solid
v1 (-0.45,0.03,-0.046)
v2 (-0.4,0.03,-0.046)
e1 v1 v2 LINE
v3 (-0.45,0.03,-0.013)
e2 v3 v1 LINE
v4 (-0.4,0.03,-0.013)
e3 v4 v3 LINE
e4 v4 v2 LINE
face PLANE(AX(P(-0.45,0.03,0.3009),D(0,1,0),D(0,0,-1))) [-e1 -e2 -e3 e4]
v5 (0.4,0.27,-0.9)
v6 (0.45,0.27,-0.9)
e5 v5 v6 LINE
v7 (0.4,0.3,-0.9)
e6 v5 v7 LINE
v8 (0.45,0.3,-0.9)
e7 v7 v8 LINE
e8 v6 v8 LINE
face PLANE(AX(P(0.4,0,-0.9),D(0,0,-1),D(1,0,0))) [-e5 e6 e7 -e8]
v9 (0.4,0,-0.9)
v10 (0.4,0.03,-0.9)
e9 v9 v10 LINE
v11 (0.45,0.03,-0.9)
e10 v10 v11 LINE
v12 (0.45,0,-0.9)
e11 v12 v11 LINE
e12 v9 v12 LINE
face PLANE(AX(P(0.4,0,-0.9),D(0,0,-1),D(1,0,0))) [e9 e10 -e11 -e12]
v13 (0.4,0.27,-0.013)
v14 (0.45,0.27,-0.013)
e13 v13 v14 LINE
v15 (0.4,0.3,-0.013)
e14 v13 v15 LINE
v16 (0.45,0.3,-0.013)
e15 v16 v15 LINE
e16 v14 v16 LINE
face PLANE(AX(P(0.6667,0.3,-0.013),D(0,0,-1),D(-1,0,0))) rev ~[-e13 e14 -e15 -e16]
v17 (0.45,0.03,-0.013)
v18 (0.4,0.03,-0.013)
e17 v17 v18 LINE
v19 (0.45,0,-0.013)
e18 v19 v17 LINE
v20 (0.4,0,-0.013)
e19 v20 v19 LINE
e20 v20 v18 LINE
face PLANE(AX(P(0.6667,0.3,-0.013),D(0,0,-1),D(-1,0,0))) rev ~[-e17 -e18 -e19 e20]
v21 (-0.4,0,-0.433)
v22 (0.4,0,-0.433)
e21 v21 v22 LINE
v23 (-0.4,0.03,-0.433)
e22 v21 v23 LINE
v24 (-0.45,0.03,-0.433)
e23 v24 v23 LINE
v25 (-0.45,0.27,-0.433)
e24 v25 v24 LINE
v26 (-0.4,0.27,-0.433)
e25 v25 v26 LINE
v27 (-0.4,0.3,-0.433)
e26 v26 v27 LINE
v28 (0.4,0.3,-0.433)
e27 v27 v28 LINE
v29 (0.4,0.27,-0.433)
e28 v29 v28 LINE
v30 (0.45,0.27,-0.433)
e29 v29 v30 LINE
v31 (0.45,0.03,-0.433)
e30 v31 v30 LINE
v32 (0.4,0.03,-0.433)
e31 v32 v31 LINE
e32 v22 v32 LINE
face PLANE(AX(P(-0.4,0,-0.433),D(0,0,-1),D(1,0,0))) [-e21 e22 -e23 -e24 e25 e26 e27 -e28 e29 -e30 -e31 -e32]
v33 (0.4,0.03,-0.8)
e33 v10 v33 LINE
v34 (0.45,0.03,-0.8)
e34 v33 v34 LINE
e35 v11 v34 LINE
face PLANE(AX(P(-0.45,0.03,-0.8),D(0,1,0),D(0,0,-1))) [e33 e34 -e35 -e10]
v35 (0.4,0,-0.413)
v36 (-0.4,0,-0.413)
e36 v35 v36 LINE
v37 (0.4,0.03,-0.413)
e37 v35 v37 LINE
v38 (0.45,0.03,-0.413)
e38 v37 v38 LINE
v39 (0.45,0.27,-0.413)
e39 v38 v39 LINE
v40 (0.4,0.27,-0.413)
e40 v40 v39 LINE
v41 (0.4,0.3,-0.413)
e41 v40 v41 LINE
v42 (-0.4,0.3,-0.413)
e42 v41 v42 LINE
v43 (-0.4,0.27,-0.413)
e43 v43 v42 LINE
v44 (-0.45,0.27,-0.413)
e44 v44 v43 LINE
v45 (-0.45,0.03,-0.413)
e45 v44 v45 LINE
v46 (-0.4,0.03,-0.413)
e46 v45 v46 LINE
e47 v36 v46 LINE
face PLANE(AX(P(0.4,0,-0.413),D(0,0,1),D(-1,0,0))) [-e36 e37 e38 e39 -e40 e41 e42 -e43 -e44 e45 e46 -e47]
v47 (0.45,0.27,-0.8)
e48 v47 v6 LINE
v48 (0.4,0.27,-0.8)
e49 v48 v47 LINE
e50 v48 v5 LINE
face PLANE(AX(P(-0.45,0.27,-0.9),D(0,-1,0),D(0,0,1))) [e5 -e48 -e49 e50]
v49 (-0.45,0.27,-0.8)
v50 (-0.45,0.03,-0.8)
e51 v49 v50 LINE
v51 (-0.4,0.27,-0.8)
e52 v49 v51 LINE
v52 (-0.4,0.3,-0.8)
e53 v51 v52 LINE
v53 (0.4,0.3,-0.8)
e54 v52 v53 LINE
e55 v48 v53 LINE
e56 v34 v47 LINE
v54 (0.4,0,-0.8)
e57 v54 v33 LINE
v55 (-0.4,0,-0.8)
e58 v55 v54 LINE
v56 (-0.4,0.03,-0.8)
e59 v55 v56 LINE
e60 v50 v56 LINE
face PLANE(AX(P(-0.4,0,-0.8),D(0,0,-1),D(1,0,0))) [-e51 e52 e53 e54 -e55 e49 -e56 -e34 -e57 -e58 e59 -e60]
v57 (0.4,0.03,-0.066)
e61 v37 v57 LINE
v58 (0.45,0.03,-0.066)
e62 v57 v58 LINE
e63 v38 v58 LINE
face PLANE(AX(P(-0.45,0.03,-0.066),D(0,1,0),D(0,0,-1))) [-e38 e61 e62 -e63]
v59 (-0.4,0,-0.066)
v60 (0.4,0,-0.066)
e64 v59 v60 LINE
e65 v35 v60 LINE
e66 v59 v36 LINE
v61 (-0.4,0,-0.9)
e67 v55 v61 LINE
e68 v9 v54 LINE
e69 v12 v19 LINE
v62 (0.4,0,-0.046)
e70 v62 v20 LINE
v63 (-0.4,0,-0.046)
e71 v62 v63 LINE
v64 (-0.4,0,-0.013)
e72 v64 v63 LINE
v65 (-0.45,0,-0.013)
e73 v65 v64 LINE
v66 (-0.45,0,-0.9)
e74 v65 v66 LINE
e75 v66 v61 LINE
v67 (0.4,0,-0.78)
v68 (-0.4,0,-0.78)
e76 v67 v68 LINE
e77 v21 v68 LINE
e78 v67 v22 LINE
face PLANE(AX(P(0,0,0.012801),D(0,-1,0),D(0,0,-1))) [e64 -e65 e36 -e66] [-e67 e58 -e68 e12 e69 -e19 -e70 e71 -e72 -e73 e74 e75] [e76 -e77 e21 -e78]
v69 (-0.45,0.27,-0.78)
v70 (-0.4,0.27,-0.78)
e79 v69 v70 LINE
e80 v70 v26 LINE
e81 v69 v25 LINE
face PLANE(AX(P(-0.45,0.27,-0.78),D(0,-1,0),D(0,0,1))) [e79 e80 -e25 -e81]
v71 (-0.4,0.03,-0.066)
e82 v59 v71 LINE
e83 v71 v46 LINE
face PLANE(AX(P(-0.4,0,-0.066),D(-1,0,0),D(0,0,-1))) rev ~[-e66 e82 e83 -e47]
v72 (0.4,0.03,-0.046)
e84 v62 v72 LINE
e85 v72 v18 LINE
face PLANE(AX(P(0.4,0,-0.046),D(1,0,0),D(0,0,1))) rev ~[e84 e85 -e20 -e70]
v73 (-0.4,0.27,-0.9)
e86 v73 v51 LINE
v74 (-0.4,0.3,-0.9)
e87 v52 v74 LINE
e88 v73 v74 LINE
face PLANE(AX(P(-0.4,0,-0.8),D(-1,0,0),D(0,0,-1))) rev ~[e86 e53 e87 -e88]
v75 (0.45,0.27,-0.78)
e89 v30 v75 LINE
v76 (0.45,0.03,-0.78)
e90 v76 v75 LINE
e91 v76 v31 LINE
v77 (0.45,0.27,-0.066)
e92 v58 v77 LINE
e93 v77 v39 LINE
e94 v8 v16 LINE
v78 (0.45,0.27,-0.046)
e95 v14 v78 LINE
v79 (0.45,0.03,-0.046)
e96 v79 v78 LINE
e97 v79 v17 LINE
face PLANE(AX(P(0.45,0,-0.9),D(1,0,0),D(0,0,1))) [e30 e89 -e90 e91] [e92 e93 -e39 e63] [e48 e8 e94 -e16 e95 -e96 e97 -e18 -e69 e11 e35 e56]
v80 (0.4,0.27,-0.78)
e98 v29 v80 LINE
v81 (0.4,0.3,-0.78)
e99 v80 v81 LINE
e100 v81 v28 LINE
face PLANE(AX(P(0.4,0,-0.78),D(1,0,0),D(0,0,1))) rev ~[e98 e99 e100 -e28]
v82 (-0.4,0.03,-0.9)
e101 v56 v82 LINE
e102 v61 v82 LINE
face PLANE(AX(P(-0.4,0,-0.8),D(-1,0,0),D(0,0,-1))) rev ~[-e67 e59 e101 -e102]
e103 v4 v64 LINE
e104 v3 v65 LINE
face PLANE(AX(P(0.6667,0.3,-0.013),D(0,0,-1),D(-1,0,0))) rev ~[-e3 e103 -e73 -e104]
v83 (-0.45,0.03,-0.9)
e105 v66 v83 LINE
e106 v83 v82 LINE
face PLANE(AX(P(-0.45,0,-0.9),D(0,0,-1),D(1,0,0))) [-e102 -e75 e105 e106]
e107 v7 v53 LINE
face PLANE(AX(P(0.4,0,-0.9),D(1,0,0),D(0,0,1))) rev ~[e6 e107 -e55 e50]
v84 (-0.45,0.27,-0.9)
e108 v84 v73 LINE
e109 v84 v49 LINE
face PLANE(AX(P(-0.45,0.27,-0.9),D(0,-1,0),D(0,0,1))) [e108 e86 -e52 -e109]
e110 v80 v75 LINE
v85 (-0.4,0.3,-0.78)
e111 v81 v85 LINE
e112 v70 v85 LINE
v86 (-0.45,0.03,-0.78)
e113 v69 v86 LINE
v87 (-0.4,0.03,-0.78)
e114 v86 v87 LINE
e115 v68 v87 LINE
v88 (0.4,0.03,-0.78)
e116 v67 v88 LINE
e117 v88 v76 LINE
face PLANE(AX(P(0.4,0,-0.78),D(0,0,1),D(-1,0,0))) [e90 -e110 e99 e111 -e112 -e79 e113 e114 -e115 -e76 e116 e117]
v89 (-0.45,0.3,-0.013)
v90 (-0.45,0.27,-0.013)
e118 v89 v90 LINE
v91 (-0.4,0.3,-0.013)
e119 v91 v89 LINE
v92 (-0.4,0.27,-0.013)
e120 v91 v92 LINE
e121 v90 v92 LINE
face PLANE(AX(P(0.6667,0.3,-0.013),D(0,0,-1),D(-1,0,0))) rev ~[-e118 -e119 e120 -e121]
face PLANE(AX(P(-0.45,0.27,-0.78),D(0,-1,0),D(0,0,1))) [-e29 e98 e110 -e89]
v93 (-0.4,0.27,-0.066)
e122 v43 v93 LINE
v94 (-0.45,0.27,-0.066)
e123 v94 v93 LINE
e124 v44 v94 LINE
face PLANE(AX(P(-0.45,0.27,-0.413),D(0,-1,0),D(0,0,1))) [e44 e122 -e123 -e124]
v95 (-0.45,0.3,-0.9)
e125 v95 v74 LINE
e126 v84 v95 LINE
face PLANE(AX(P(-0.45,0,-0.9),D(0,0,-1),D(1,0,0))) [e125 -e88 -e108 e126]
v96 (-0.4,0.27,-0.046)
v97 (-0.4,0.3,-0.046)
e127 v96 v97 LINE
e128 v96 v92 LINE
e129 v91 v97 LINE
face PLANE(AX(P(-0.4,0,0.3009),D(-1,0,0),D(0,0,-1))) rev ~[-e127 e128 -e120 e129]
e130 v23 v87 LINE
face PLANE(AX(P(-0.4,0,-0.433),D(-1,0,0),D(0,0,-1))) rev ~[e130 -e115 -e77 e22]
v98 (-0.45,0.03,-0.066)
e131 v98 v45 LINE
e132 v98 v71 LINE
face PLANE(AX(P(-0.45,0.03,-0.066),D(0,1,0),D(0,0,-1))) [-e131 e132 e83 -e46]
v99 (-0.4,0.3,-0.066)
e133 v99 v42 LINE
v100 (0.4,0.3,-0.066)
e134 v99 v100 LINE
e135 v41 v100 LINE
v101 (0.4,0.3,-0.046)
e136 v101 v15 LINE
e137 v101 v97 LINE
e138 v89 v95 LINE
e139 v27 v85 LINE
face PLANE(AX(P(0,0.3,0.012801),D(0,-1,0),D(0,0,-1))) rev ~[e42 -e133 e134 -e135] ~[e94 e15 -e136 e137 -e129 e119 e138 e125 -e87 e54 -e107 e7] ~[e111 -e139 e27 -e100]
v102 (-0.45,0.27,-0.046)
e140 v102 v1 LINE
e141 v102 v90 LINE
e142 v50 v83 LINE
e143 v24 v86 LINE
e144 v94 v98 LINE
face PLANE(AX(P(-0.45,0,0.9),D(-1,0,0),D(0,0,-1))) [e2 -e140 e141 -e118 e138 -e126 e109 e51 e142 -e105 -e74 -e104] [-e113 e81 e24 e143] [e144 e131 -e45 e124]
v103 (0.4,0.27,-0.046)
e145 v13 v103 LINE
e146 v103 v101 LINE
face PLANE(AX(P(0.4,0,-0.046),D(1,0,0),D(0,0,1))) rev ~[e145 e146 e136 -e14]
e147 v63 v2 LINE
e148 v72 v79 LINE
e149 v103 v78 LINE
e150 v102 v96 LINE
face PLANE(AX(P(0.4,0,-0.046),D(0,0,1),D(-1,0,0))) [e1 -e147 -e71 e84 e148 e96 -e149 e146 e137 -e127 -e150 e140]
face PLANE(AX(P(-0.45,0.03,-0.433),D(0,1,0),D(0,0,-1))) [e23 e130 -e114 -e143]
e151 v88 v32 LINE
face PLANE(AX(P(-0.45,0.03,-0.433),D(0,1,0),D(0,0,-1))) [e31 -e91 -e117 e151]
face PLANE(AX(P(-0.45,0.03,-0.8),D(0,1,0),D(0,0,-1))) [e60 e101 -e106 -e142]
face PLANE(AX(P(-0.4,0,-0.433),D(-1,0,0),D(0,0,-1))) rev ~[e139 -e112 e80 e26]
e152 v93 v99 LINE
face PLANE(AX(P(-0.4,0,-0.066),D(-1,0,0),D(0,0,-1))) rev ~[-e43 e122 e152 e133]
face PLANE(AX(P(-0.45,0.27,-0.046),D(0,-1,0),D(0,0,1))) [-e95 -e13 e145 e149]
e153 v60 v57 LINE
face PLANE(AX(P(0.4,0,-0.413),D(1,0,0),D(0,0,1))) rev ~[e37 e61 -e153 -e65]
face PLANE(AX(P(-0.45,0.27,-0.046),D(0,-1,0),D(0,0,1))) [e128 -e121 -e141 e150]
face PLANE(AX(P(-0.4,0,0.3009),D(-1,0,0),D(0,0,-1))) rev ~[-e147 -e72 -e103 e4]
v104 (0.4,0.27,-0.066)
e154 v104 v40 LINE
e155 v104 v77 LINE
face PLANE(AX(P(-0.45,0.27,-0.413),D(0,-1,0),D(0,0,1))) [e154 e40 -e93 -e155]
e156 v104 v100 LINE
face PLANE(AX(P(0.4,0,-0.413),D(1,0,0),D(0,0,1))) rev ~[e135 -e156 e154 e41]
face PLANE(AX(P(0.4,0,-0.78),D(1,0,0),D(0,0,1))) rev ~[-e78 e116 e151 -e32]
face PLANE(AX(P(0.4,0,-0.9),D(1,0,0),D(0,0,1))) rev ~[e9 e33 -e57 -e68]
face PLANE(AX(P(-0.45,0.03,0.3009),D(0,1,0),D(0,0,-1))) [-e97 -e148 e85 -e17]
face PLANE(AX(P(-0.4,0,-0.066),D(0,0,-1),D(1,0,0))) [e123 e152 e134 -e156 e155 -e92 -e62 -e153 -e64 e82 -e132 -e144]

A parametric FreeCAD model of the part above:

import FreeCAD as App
import Part
import Sketcher

V = App.Vector
Q = App.Units.Quantity


def add_polygon(sketch, points):
    """Adds a closed chain of lines whose ends are joined by coincident constraints."""
    first, n = sketch.GeometryCount, len(points)
    for a, b in zip(points, points[1:] + points[:1]):
        sketch.addGeometry(Part.LineSegment(App.Vector(*a, 0), App.Vector(*b, 0)), False)
    for i in range(n):
        sketch.addConstraint(Sketcher.Constraint("Coincident", first + i, 2, first + (i + 1) % n, 1))

doc = App.newDocument("Part")
body = doc.addObject("PartDesign::Body", "Body")

# Sketch on XZ plane
sketch1 = body.newObject("Sketcher::SketchObject", "Sketch")
sketch1.AttachmentSupport = (doc.getObject("XZ_Plane"), [""])
sketch1.MapMode = "FlatFace"
add_polygon(sketch1, [(0.4, -0.8), (0.4, -0.9), (0.45, -0.9), (0.45, 0.9), (0.4, 0.9), (0.4, 0.6879), (-0.4, 0.6879), (-0.4, 0.9), (-0.45, 0.9), (-0.45, -0.9), (-0.4, -0.9), (-0.4, -0.8)])  # lines 0-11
add_polygon(sketch1, [(-0.4, -0.78), (-0.4, -0.433), (0.4, -0.433), (0.4, -0.78)])  # lines 12-15
add_polygon(sketch1, [(-0.4, -0.413), (-0.4, -0.066), (0.4, -0.066), (0.4, -0.413)])  # lines 16-19
add_polygon(sketch1, [(-0.4, -0.046), (-0.4, 0.3009), (0.4, 0.3009), (0.4, -0.046)])  # lines 20-23
add_polygon(sketch1, [(-0.4, 0.3209), (-0.4, 0.6679), (0.4, 0.6679), (0.4, 0.3209)])  # lines 24-27
sketch1.addConstraint(Sketcher.Constraint("Vertical", 0))
sketch1.addConstraint(Sketcher.Constraint("Horizontal", 1))
sketch1.addConstraint(Sketcher.Constraint("Vertical", 2))
sketch1.addConstraint(Sketcher.Constraint("Horizontal", 3))
sketch1.addConstraint(Sketcher.Constraint("Vertical", 4))
sketch1.addConstraint(Sketcher.Constraint("Horizontal", 5))
sketch1.addConstraint(Sketcher.Constraint("Vertical", 6))
sketch1.addConstraint(Sketcher.Constraint("Horizontal", 7))
sketch1.addConstraint(Sketcher.Constraint("Vertical", 8))
sketch1.addConstraint(Sketcher.Constraint("Horizontal", 9))
sketch1.addConstraint(Sketcher.Constraint("Vertical", 10))
sketch1.addConstraint(Sketcher.Constraint("Horizontal", 11))
sketch1.addConstraint(Sketcher.Constraint("Vertical", 12))
sketch1.addConstraint(Sketcher.Constraint("Horizontal", 13))
sketch1.addConstraint(Sketcher.Constraint("Vertical", 14))
sketch1.addConstraint(Sketcher.Constraint("Horizontal", 15))
sketch1.addConstraint(Sketcher.Constraint("Vertical", 16))
sketch1.addConstraint(Sketcher.Constraint("Horizontal", 17))
sketch1.addConstraint(Sketcher.Constraint("Vertical", 18))
sketch1.addConstraint(Sketcher.Constraint("Horizontal", 19))
sketch1.addConstraint(Sketcher.Constraint("Vertical", 20))
sketch1.addConstraint(Sketcher.Constraint("Horizontal", 21))
sketch1.addConstraint(Sketcher.Constraint("Vertical", 22))
sketch1.addConstraint(Sketcher.Constraint("Horizontal", 23))
sketch1.addConstraint(Sketcher.Constraint("Vertical", 24))
sketch1.addConstraint(Sketcher.Constraint("Horizontal", 25))
sketch1.addConstraint(Sketcher.Constraint("Vertical", 26))
sketch1.addConstraint(Sketcher.Constraint("Horizontal", 27))
sketch1.addConstraint(Sketcher.Constraint("Symmetric", 0, 2, 6, 2, -1, 1))
sketch1.addConstraint(Sketcher.Constraint("Symmetric", 2, 2, 8, 2, -1, 1))
sketch1.addConstraint(Sketcher.Constraint("Symmetric", 3, 2, 6, 2, -2))
sketch1.addConstraint(Sketcher.Constraint("Vertical", 6, 2, 9, 2))
sketch1.addConstraint(Sketcher.Constraint("Vertical", 10, 2, 12, 2))
sketch1.addConstraint(Sketcher.Constraint("Vertical", 11, 2, 13, 2))
sketch1.addConstraint(Sketcher.Constraint("Vertical", 15, 2, 16, 2))
sketch1.addConstraint(Sketcher.Constraint("Vertical", 14, 2, 17, 2))
sketch1.addConstraint(Sketcher.Constraint("Vertical", 19, 2, 20, 2))
sketch1.addConstraint(Sketcher.Constraint("Vertical", 18, 2, 21, 2))
sketch1.addConstraint(Sketcher.Constraint("Vertical", 23, 2, 24, 2))
sketch1.addConstraint(Sketcher.Constraint("Vertical", 22, 2, 25, 2))
sketch1.addConstraint(Sketcher.Constraint("Equal", 14, 16))
sketch1.addConstraint(Sketcher.Constraint("Equal", 18, 20))
sketch1.addConstraint(Sketcher.Constraint("Equal", 22, 24))
sketch1.addConstraint(Sketcher.Constraint("DistanceX", -1, 1, 0, 2, Q("0.4 mm")))
sketch1.addConstraint(Sketcher.Constraint("DistanceX", -1, 1, 1, 2, Q("0.45 mm")))
sketch1.addConstraint(Sketcher.Constraint("DistanceY", 0, 2, 0, 1, Q("0.1 mm")))
sketch1.addConstraint(Sketcher.Constraint("DistanceY", 2, 1, 2, 2, Q("1.8 mm")))
sketch1.addConstraint(Sketcher.Constraint("DistanceY", 4, 2, 4, 1, Q("0.212 mm")))
sketch1.addConstraint(Sketcher.Constraint("DistanceY", 12, 1, 12, 2, Q("0.347 mm")))
sketch1.addConstraint(Sketcher.Constraint("DistanceY", 14, 2, -1, 1, Q("0.78 mm")))
sketch1.addConstraint(Sketcher.Constraint("DistanceY", 13, 2, 18, 2, Q("0.02 mm")))
sketch1.addConstraint(Sketcher.Constraint("DistanceY", 17, 2, 22, 2, Q("0.02 mm")))
sketch1.addConstraint(Sketcher.Constraint("DistanceY", 24, 2, 5, 2, Q("0.02 mm")))
pad1 = body.newObject("PartDesign::Pad", "Pad")
pad1.Profile = sketch1
pad1.Length = 0.3
pad1.Reversed = True

# Sketch on YZ plane
sketch2 = body.newObject("Sketcher::SketchObject", "Sketch001")
sketch2.AttachmentSupport = (doc.getObject("YZ_Plane"), [""])
sketch2.MapMode = "FlatFace"
sketch2.AttachmentOffset = App.Placement(V(0, 0, -0.45), App.Rotation())
add_polygon(sketch2, [(0.03, 0.6679), (0.27, 0.6679), (0.27, 0.3209), (0.03, 0.3209)])  # lines 0-3
add_polygon(sketch2, [(0.03, 0.3009), (0.27, 0.3009), (0.27, -0.046), (0.03, -0.046)])  # lines 4-7
add_polygon(sketch2, [(0.03, -0.066), (0.27, -0.066), (0.27, -0.413), (0.03, -0.413)])  # lines 8-11
add_polygon(sketch2, [(0.03, -0.433), (0.27, -0.433), (0.27, -0.78), (0.03, -0.78)])  # lines 12-15
add_polygon(sketch2, [(0.03, -0.8), (0.27, -0.8), (0.27, -0.9), (0.03, -0.9)])  # lines 16-19
add_polygon(sketch2, [(0.27, 0.9), (0.27, 0.6879), (0.03, 0.6879), (0.03, 0.9)])  # lines 20-23
sketch2.addConstraint(Sketcher.Constraint("Horizontal", 0))
sketch2.addConstraint(Sketcher.Constraint("Vertical", 1))
sketch2.addConstraint(Sketcher.Constraint("Horizontal", 2))
sketch2.addConstraint(Sketcher.Constraint("Vertical", 3))
sketch2.addConstraint(Sketcher.Constraint("Horizontal", 4))
sketch2.addConstraint(Sketcher.Constraint("Vertical", 5))
sketch2.addConstraint(Sketcher.Constraint("Horizontal", 6))
sketch2.addConstraint(Sketcher.Constraint("Vertical", 7))
sketch2.addConstraint(Sketcher.Constraint("Horizontal", 8))
sketch2.addConstraint(Sketcher.Constraint("Vertical", 9))
sketch2.addConstraint(Sketcher.Constraint("Horizontal", 10))
sketch2.addConstraint(Sketcher.Constraint("Vertical", 11))
sketch2.addConstraint(Sketcher.Constraint("Horizontal", 12))
sketch2.addConstraint(Sketcher.Constraint("Vertical", 13))
sketch2.addConstraint(Sketcher.Constraint("Horizontal", 14))
sketch2.addConstraint(Sketcher.Constraint("Vertical", 15))
sketch2.addConstraint(Sketcher.Constraint("Horizontal", 16))
sketch2.addConstraint(Sketcher.Constraint("Vertical", 17))
sketch2.addConstraint(Sketcher.Constraint("Horizontal", 18))
sketch2.addConstraint(Sketcher.Constraint("Vertical", 19))
sketch2.addConstraint(Sketcher.Constraint("Vertical", 20))
sketch2.addConstraint(Sketcher.Constraint("Horizontal", 21))
sketch2.addConstraint(Sketcher.Constraint("Vertical", 22))
sketch2.addConstraint(Sketcher.Constraint("Horizontal", 23))
sketch2.addConstraint(Sketcher.Constraint("Symmetric", 18, 2, 22, 2, -1))
sketch2.addConstraint(Sketcher.Constraint("Vertical", 1, 2, 4, 2))
sketch2.addConstraint(Sketcher.Constraint("Vertical", 3, 2, 6, 2))
sketch2.addConstraint(Sketcher.Constraint("Vertical", 5, 2, 8, 2))
sketch2.addConstraint(Sketcher.Constraint("Vertical", 7, 2, 10, 2))
sketch2.addConstraint(Sketcher.Constraint("Vertical", 9, 2, 12, 2))
sketch2.addConstraint(Sketcher.Constraint("Vertical", 11, 2, 14, 2))
sketch2.addConstraint(Sketcher.Constraint("Vertical", 13, 2, 16, 2))
sketch2.addConstraint(Sketcher.Constraint("Vertical", 15, 2, 18, 2))
sketch2.addConstraint(Sketcher.Constraint("Vertical", 17, 2, 20, 2))
sketch2.addConstraint(Sketcher.Constraint("Equal", 3, 5))
sketch2.addConstraint(Sketcher.Constraint("Equal", 7, 9))
sketch2.addConstraint(Sketcher.Constraint("Equal", 11, 13))
sketch2.addConstraint(Sketcher.Constraint("DistanceY", 17, 2, -1, 1, Q("0.9 mm")))
sketch2.addConstraint(Sketcher.Constraint("DistanceY", 17, 2, 17, 1, Q("0.1 mm")))
sketch2.addConstraint(Sketcher.Constraint("DistanceX", 0, 1, 0, 2, Q("0.24 mm")))
sketch2.addConstraint(Sketcher.Constraint("DistanceY", 1, 2, 1, 1, Q("0.347 mm")))
sketch2.addConstraint(Sketcher.Constraint("DistanceY", 20, 2, 20, 1, Q("0.212 mm")))
sketch2.addConstraint(Sketcher.Constraint("DistanceX", -1, 1, 0, 2, Q("0.27 mm")))
sketch2.addConstraint(Sketcher.Constraint("DistanceY", 13, 2, -1, 1, Q("0.78 mm")))
sketch2.addConstraint(Sketcher.Constraint("DistanceY", 4, 2, 1, 2, Q("0.02 mm")))
sketch2.addConstraint(Sketcher.Constraint("DistanceY", 8, 2, 5, 2, Q("0.02 mm")))
sketch2.addConstraint(Sketcher.Constraint("DistanceY", 12, 2, 9, 2, Q("0.02 mm")))
pocket1 = body.newObject("PartDesign::Pocket", "Pocket")
pocket1.Profile = sketch2
pocket1.Type = "ThroughAll"
pocket1.Reversed = True

# Sketch on XZ plane
sketch3 = body.newObject("Sketcher::SketchObject", "Sketch002")
sketch3.AttachmentSupport = (doc.getObject("XZ_Plane"), [""])
sketch3.MapMode = "FlatFace"
sketch3.AttachmentOffset = App.Placement(V(0, 0, -0.3), App.Rotation())
add_polygon(sketch3, [(0.6667, 1), (0.6667, -0.013), (-0.6786, -0.013), (-0.6786, 1)])  # lines 0-3
sketch3.addConstraint(Sketcher.Constraint("Vertical", 0))
sketch3.addConstraint(Sketcher.Constraint("Horizontal", 1))
sketch3.addConstraint(Sketcher.Constraint("Vertical", 2))
sketch3.addConstraint(Sketcher.Constraint("Horizontal", 3))
sketch3.addConstraint(Sketcher.Constraint("DistanceY", -1, 1, 2, 2, Q("1 mm")))
sketch3.addConstraint(Sketcher.Constraint("DistanceY", 0, 2, 0, 1, Q("1.013 mm")))
sketch3.addConstraint(Sketcher.Constraint("DistanceX", 1, 2, 1, 1, Q("1.3453 mm")))
sketch3.addConstraint(Sketcher.Constraint("DistanceX", -1, 1, 0, 2, Q("0.6667 mm")))
pocket2 = body.newObject("PartDesign::Pocket", "Pocket001")
pocket2.Profile = sketch3
pocket2.Type = "ThroughAll"
pocket2.Reversed = True

doc.recompute()
